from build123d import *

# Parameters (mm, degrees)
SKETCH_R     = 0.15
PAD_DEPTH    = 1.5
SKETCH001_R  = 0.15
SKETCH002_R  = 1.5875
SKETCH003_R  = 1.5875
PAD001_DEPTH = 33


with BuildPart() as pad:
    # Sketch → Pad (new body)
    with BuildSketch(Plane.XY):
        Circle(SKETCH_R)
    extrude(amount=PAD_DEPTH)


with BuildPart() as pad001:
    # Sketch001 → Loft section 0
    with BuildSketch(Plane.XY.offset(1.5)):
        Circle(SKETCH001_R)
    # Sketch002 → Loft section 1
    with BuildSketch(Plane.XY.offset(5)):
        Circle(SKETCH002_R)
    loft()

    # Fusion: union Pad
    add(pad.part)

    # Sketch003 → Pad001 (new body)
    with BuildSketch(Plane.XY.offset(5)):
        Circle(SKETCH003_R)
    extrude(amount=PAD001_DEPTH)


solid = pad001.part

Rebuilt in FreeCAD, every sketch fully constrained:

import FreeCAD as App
import Part
import Sketcher
from FreeCAD import Vector
Q = App.Units.Quantity

doc = App.newDocument("Part")
body = doc.addObject("PartDesign::Body", "Body")

sketch1 = body.newObject("Sketcher::SketchObject", "Sketch")
sketch1.AttachmentSupport = (doc.getObject("XY_Plane"), [""])
sketch1.MapMode = "FlatFace"
sketch1.addGeometry(Part.Circle(Vector(0, 0, 0), Vector(0, 0, 1), 0.15), False)
sketch1.addConstraint(Sketcher.Constraint("Coincident", 0, 3, -1, 1))
sketch1.addConstraint(Sketcher.Constraint("Diameter", 0, Q("0.3 mm")))
pad1 = body.newObject("PartDesign::Pad", "Pad")
pad1.Profile = sketch1
pad1.Length = 1.5
body2 = doc.addObject("PartDesign::Body", "Body001")

sketch2 = body2.newObject("Sketcher::SketchObject", "Sketch001")
sketch2.AttachmentSupport = (doc.getObject("XY_Plane001"), [""])
sketch2.MapMode = "FlatFace"
sketch2.AttachmentOffset = App.Placement(Vector(0, 0, 1.5), App.Rotation())
sketch2.addGeometry(Part.Circle(Vector(0, 0, 0), Vector(0, 0, 1), 0.15), False)
sketch2.addConstraint(Sketcher.Constraint("Coincident", 0, 3, -1, 1))
sketch2.addConstraint(Sketcher.Constraint("Diameter", 0, Q("0.3 mm")))

sketch3 = body2.newObject("Sketcher::SketchObject", "Sketch002")
sketch3.AttachmentSupport = (doc.getObject("XY_Plane001"), [""])
sketch3.MapMode = "FlatFace"
sketch3.AttachmentOffset = App.Placement(Vector(0, 0, 5), App.Rotation())
sketch3.addGeometry(Part.Circle(Vector(0, 0, 0), Vector(0, 0, 1), 1.6), False)
sketch3.addConstraint(Sketcher.Constraint("Coincident", 0, 3, -1, 1))
sketch3.addConstraint(Sketcher.Constraint("Diameter", 0, Q("3.175 mm")))

additiveloft = body2.newObject("PartDesign::AdditiveLoft", "AdditiveLoft")
additiveloft.Profile = sketch2
additiveloft.Sections = [sketch3]
doc.recompute()

boolean = body2.newObject("PartDesign::Boolean", "Boolean")
boolean.Type = "Fuse"
boolean.addObjects([body])

sketch4 = body2.newObject("Sketcher::SketchObject", "Sketch003")
sketch4.AttachmentSupport = (doc.getObject("XY_Plane001"), [""])
sketch4.MapMode = "FlatFace"
sketch4.AttachmentOffset = App.Placement(Vector(0, 0, 5), App.Rotation())
sketch4.addGeometry(Part.Circle(Vector(0, 0, 0), Vector(0, 0, 1), 1.6), False)
sketch4.addConstraint(Sketcher.Constraint("Coincident", 0, 3, -1, 1))
sketch4.addConstraint(Sketcher.Constraint("Diameter", 0, Q("3.175 mm")))
pad2 = body2.newObject("PartDesign::Pad", "Pad001")
pad2.Profile = sketch4
pad2.Length = 33

doc.recompute()
